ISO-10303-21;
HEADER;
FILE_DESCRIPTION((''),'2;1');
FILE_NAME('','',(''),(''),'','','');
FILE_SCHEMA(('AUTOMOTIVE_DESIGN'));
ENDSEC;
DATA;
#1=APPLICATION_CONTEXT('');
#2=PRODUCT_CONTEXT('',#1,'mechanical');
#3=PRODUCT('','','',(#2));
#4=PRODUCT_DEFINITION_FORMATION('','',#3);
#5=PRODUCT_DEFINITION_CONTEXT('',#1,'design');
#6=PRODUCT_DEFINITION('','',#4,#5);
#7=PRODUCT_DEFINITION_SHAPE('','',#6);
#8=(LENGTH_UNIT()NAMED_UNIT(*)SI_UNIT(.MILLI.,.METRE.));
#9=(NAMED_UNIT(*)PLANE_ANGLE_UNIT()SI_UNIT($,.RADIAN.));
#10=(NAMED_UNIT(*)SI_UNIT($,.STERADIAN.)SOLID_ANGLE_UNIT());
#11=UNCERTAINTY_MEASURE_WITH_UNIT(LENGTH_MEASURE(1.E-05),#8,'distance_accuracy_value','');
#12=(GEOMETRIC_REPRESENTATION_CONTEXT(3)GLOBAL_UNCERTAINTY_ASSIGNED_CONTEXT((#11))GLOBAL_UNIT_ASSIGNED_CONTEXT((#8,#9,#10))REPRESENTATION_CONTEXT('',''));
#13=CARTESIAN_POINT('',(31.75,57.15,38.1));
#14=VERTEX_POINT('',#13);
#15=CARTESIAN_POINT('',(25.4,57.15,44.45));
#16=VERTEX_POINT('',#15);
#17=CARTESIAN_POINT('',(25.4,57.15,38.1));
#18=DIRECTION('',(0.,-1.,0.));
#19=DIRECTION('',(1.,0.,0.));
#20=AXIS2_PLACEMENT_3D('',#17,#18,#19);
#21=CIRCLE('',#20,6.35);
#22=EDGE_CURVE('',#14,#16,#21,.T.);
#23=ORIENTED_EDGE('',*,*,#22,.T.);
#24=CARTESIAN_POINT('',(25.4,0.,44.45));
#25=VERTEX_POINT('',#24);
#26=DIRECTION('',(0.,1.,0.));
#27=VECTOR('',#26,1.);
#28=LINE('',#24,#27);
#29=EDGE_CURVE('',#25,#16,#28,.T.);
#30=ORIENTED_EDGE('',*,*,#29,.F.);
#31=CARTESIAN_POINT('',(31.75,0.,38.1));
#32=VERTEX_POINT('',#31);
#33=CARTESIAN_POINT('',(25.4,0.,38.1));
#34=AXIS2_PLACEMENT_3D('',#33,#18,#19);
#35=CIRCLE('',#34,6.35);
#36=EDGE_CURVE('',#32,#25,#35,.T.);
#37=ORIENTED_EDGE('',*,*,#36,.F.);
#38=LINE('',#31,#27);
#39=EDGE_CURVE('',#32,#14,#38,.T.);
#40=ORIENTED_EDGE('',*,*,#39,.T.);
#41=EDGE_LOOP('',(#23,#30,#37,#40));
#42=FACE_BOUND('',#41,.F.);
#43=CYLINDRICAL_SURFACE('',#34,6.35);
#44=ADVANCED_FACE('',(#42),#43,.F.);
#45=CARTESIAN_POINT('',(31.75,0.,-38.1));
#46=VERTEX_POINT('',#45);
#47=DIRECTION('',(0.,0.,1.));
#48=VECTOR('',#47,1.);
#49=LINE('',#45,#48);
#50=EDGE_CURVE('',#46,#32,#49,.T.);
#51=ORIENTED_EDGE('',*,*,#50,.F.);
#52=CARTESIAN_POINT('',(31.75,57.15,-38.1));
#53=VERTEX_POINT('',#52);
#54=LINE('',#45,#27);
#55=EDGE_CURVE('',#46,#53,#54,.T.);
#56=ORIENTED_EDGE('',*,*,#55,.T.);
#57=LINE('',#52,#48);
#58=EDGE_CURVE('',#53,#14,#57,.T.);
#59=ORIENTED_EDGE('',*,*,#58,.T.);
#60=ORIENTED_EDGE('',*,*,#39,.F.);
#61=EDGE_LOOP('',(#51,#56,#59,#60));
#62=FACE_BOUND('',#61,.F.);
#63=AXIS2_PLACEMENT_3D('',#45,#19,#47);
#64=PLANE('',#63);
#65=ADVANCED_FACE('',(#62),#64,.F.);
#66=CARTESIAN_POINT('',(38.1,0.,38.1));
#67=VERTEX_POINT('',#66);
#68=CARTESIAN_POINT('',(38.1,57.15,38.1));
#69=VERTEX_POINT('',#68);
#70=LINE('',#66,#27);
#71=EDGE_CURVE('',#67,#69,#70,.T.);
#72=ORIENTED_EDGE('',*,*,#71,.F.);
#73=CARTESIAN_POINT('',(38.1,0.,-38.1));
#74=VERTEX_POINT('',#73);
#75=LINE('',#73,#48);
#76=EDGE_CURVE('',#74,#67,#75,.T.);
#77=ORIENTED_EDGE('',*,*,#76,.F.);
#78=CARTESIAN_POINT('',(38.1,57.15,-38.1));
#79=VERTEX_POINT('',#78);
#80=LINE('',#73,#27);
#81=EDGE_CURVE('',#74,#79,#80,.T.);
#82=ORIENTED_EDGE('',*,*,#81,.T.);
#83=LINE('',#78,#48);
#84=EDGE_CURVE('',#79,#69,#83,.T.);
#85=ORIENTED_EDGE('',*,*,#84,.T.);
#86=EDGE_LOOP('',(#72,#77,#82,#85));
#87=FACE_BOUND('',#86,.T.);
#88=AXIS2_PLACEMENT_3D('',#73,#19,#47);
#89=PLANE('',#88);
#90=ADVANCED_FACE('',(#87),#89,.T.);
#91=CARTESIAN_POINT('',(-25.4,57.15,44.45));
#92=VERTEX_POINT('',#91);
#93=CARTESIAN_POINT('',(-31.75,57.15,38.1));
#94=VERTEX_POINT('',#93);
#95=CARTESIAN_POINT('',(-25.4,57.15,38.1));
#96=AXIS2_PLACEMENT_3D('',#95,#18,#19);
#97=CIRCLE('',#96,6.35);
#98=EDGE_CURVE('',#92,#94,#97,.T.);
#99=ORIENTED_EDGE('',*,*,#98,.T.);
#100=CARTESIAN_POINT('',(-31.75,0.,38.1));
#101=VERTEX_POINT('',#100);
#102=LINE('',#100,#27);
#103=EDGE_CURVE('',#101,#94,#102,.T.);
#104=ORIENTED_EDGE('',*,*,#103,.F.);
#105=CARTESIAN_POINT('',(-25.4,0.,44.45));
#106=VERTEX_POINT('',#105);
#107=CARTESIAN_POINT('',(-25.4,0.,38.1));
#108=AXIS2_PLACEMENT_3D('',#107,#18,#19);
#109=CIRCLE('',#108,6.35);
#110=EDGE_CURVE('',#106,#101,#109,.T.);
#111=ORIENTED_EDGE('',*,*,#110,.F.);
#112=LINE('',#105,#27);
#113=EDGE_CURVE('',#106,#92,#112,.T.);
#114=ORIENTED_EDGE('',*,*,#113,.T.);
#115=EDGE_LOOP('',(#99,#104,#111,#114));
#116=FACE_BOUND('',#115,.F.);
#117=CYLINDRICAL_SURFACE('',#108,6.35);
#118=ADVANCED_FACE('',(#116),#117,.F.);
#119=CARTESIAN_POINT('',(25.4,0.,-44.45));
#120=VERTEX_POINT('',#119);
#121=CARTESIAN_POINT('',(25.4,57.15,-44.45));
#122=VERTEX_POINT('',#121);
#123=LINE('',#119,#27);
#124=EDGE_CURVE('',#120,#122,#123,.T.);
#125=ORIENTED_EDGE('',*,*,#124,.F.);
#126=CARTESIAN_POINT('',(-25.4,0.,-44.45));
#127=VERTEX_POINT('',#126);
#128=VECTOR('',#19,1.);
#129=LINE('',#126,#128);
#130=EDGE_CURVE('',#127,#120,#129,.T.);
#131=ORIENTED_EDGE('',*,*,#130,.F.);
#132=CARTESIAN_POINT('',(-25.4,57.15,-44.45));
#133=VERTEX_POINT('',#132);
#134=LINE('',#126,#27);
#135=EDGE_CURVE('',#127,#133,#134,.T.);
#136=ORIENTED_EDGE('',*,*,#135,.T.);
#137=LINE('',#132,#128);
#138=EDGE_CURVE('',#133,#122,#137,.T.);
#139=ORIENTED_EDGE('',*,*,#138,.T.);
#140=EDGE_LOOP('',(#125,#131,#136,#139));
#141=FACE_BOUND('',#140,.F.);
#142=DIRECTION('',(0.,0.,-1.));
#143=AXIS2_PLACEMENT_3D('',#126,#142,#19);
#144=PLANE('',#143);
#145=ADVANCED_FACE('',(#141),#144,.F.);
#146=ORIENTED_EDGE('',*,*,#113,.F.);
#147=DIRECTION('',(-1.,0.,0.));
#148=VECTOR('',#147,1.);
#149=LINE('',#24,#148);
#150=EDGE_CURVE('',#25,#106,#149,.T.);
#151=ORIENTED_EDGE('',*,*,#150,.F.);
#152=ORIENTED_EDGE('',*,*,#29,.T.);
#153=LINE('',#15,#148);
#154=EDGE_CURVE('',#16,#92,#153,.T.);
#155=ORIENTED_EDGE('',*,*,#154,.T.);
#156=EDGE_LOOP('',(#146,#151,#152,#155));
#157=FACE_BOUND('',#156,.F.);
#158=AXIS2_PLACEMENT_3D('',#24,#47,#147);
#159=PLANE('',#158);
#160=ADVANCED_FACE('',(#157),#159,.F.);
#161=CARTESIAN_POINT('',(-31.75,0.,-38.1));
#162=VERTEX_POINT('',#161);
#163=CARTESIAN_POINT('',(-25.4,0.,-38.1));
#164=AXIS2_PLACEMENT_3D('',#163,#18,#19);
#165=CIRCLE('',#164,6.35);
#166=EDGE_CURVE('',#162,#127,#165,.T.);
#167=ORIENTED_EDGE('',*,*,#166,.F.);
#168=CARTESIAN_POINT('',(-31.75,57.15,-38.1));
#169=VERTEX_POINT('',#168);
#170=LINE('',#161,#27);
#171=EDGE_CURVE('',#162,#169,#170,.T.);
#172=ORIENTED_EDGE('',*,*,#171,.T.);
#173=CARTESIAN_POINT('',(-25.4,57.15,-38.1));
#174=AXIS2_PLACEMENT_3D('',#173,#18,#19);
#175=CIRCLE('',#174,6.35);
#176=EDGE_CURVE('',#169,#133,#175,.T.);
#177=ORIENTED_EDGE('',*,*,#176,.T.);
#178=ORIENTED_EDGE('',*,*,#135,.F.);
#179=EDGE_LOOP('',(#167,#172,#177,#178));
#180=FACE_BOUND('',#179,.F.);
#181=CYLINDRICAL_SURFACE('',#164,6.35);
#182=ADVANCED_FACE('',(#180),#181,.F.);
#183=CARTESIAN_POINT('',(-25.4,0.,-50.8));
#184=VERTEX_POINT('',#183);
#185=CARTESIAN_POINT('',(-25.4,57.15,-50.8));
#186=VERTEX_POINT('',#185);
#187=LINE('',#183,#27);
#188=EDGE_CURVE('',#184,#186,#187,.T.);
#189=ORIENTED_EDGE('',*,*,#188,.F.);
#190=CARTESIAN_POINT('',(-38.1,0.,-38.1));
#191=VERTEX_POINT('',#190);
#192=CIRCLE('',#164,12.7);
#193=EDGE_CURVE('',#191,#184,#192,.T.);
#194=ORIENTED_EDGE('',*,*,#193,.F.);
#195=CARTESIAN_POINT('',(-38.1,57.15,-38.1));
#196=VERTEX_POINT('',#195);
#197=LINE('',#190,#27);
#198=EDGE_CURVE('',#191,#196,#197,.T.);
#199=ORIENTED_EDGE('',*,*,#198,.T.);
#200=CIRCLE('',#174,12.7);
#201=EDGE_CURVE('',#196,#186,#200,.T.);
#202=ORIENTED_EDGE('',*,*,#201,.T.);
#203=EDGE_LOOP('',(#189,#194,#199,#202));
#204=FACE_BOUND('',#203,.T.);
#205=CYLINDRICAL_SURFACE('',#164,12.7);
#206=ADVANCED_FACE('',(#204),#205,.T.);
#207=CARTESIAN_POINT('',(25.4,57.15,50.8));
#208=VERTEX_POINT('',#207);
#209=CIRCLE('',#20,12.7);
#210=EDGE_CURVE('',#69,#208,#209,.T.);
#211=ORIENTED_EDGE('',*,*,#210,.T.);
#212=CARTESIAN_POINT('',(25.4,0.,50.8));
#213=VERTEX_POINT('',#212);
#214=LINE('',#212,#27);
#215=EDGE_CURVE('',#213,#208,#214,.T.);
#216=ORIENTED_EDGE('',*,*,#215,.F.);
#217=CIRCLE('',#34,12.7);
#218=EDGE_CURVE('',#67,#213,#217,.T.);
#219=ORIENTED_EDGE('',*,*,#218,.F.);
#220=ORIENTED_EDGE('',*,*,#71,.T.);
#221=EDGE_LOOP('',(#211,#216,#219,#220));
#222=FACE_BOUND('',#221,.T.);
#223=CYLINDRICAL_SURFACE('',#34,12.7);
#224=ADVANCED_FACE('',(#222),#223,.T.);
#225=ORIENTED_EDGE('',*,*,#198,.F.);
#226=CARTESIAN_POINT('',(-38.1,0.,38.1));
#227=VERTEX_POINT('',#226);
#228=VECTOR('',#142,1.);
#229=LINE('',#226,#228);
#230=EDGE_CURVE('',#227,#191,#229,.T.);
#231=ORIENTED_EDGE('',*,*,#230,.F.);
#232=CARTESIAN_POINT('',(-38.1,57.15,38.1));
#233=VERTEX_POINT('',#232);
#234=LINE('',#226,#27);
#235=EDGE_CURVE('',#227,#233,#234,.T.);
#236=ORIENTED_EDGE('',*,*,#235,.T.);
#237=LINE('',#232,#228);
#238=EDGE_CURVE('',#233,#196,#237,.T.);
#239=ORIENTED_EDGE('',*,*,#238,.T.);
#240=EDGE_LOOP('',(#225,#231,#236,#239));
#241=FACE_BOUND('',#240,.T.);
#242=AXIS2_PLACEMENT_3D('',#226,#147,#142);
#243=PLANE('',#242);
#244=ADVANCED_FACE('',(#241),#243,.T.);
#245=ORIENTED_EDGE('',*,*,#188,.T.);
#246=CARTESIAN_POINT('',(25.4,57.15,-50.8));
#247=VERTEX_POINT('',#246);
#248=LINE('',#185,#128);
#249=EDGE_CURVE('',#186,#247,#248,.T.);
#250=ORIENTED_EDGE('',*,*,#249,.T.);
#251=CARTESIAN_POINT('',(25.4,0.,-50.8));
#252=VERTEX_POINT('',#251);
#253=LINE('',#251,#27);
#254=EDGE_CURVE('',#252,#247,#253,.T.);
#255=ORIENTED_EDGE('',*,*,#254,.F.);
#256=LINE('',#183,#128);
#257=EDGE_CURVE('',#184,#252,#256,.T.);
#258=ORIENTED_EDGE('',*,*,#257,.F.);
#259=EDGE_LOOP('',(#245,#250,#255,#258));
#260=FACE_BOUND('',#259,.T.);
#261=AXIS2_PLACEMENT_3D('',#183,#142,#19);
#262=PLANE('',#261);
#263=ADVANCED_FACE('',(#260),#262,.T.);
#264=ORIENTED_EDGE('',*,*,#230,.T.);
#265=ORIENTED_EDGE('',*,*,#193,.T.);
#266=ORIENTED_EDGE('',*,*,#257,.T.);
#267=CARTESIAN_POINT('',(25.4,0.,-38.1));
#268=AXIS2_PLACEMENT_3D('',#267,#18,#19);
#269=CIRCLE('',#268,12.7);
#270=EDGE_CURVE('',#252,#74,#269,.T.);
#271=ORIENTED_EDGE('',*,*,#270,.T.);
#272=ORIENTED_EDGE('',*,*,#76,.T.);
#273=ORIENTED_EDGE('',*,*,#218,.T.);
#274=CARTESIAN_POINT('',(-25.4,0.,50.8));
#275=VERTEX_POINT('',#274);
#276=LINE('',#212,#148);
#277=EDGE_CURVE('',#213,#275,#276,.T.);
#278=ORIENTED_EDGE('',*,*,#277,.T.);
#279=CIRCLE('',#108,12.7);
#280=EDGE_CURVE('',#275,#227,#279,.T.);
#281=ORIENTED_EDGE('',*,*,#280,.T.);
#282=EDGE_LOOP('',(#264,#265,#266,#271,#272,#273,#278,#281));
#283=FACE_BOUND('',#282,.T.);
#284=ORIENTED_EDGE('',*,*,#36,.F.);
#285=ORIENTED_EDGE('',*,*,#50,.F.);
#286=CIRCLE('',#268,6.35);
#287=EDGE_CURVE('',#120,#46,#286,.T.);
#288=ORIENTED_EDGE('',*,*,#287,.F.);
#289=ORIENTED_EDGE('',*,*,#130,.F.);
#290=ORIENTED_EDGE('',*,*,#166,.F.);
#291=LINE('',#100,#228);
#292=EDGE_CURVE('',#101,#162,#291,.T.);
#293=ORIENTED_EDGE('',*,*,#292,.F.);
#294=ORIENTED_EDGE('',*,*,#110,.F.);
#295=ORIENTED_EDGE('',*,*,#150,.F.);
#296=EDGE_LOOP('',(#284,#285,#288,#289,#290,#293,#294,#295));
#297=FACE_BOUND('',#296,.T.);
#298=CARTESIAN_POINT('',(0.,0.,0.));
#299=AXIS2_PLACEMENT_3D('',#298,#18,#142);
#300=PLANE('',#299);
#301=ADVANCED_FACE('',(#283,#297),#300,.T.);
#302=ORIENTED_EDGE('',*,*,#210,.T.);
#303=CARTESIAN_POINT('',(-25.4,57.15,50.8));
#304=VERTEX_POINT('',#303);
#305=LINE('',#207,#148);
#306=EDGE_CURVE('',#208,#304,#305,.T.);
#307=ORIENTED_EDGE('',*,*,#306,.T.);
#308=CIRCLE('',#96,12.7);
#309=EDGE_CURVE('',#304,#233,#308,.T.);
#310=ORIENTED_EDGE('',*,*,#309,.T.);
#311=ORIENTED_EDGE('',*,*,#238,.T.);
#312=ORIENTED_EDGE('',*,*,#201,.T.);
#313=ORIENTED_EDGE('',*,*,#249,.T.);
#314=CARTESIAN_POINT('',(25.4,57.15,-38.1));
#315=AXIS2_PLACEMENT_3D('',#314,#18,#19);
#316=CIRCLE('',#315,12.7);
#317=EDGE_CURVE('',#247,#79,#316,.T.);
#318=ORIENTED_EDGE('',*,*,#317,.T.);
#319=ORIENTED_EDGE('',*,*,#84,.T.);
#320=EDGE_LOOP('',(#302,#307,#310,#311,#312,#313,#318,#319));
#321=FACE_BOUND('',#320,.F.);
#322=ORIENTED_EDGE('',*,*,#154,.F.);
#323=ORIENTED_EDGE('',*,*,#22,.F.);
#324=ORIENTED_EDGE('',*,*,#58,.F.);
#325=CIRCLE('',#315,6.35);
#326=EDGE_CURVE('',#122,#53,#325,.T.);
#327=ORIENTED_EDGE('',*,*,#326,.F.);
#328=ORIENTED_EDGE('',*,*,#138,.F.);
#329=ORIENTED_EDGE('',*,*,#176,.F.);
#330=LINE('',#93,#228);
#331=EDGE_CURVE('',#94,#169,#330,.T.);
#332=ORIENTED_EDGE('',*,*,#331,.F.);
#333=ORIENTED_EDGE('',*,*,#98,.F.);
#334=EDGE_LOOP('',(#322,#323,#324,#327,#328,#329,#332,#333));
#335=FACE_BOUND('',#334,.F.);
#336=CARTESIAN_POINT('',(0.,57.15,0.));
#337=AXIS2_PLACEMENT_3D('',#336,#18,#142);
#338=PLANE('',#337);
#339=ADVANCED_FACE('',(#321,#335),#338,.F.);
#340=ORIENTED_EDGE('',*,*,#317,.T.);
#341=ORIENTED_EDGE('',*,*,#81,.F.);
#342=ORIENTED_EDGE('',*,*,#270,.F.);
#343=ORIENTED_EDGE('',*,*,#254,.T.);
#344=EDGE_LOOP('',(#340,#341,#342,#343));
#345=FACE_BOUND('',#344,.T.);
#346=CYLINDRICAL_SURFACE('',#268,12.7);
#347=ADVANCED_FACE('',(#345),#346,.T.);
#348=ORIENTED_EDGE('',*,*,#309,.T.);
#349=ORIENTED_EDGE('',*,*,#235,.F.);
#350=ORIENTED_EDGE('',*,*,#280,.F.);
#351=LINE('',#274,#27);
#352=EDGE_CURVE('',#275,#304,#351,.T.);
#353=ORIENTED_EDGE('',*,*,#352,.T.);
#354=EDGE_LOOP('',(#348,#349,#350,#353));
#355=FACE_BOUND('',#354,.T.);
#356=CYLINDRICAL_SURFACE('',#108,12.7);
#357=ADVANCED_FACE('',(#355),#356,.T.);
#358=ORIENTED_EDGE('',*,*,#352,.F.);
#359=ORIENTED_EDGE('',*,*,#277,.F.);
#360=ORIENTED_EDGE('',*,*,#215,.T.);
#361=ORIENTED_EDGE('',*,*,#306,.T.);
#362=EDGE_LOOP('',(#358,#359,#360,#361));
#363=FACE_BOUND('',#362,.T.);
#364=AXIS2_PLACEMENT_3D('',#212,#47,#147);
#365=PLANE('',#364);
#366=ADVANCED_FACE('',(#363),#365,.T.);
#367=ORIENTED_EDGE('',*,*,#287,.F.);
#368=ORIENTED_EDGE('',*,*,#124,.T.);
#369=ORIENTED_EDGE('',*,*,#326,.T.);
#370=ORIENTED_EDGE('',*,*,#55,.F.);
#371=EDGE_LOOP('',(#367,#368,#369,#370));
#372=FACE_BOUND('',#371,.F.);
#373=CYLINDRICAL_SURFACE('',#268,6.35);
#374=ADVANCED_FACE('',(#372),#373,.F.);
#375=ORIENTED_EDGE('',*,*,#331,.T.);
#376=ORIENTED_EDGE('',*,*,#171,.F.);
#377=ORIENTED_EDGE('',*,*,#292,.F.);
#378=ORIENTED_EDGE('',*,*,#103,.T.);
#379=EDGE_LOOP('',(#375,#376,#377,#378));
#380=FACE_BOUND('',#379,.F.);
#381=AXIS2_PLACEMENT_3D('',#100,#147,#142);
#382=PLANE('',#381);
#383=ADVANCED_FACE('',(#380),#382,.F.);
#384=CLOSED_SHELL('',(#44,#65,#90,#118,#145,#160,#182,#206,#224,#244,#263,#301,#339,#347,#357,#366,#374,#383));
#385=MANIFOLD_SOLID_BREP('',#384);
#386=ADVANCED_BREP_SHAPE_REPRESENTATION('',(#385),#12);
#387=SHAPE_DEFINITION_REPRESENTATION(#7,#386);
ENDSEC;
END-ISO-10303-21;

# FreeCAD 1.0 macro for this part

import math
import FreeCAD as App
import Part
import Sketcher
Q = App.Units.Quantity

doc = App.newDocument("Part")
body = doc.addObject("PartDesign::Body", "Body")

sketch1 = doc.addObject("Sketcher::SketchObject", "Sketch")
body.addObject(sketch1)
sketch1.AttachmentSupport = (doc.XZ_Plane, [""])
sketch1.MapMode = "FlatFace"
sketch1.addGeometry([
    Part.LineSegment(App.Vector(-38.1, 38.1, 0), App.Vector(-38.1, -38.1, 0)),
    Part.ArcOfCircle(Part.Circle(App.Vector(-25.4, -38.1, 0), App.Vector(0, 0, 1), 12.7), math.radians(180), math.radians(270)),
    Part.LineSegment(App.Vector(-25.4, -50.8, 0), App.Vector(25.4, -50.8, 0)),
    Part.ArcOfCircle(Part.Circle(App.Vector(25.4, -38.1, 0), App.Vector(0, 0, 1), 12.7), math.radians(-90), math.radians(0)),
    Part.LineSegment(App.Vector(38.1, -38.1, 0), App.Vector(38.1, 38.1, 0)),
    Part.ArcOfCircle(Part.Circle(App.Vector(25.4, 38.1, 0), App.Vector(0, 0, 1), 12.7), math.radians(0), math.radians(90)),
    Part.LineSegment(App.Vector(25.4, 50.8, 0), App.Vector(-25.4, 50.8, 0)),
    Part.ArcOfCircle(Part.Circle(App.Vector(-25.4, 38.1, 0), App.Vector(0, 0, 1), 12.7), math.radians(90), math.radians(180)),
    Part.ArcOfCircle(Part.Circle(App.Vector(-25.4, -38.1, 0), App.Vector(0, 0, 1), 6.35), math.radians(180), math.radians(270)),
    Part.LineSegment(App.Vector(-31.75, -38.1, 0), App.Vector(-31.75, 38.1, 0)),
    Part.ArcOfCircle(Part.Circle(App.Vector(-25.4, 38.1, 0), App.Vector(0, 0, 1), 6.35), math.radians(90), math.radians(180)),
    Part.LineSegment(App.Vector(-25.4, 44.45, 0), App.Vector(25.4, 44.45, 0)),
    Part.ArcOfCircle(Part.Circle(App.Vector(25.4, 38.1, 0), App.Vector(0, 0, 1), 6.35), math.radians(0), math.radians(90)),
    Part.LineSegment(App.Vector(31.75, 38.1, 0), App.Vector(31.75, -38.1, 0)),
    Part.ArcOfCircle(Part.Circle(App.Vector(25.4, -38.1, 0), App.Vector(0, 0, 1), 6.35), math.radians(-90), math.radians(0)),
    Part.LineSegment(App.Vector(25.4, -44.45, 0), App.Vector(-25.4, -44.45, 0)),
], False)
sketch1.addConstraint([
    Sketcher.Constraint("Tangent", 0, 2, 1, 1),
    Sketcher.Constraint("Tangent", 1, 2, 2, 1),
    Sketcher.Constraint("Tangent", 2, 2, 3, 1),
    Sketcher.Constraint("Tangent", 3, 2, 4, 1),
    Sketcher.Constraint("Tangent", 4, 2, 5, 1),
    Sketcher.Constraint("Tangent", 5, 2, 6, 1),
    Sketcher.Constraint("Tangent", 6, 2, 7, 1),
    Sketcher.Constraint("Tangent", 7, 2, 0, 1),
    Sketcher.Constraint("Tangent", 8, 1, 9, 1),
    Sketcher.Constraint("Tangent", 9, 2, 10, 2),
    Sketcher.Constraint("Tangent", 10, 1, 11, 1),
    Sketcher.Constraint("Tangent", 11, 2, 12, 2),
    Sketcher.Constraint("Tangent", 12, 1, 13, 1),
    Sketcher.Constraint("Tangent", 13, 2, 14, 2),
    Sketcher.Constraint("Tangent", 14, 1, 15, 1),
    Sketcher.Constraint("Tangent", 15, 2, 8, 2),
    Sketcher.Constraint("Vertical", 0),
    Sketcher.Constraint("Horizontal", 2),
    Sketcher.Constraint("Vertical", 4),
    Sketcher.Constraint("Horizontal", 6),
    Sketcher.Constraint("Vertical", 9),
    Sketcher.Constraint("Horizontal", 11),
    Sketcher.Constraint("Vertical", 13),
    Sketcher.Constraint("Horizontal", 15),
    Sketcher.Constraint("Coincident", 8, 3, 1, 3),
    Sketcher.Constraint("Coincident", 10, 3, 7, 3),
    Sketcher.Constraint("Coincident", 12, 3, 5, 3),
    Sketcher.Constraint("Equal", 1, 3),
    Sketcher.Constraint("Equal", 3, 5),
    Sketcher.Constraint("Equal", 5, 7),
    Sketcher.Constraint("Equal", 12, 14),
    Sketcher.Constraint("Symmetric", 1, 3, 5, 3, -1, 1),
    Sketcher.Constraint("Radius", 1, Q("0.5 in")),
    Sketcher.Constraint("DistanceX", 2, 1, 2, 2, Q("2 in")),
    Sketcher.Constraint("DistanceY", 0, 2, 0, 1, Q("3 in")),
    Sketcher.Constraint("Radius", 8, Q("0.25 in")),
])
pad1 = doc.addObject("PartDesign::Pad", "Pad")
body.addObject(pad1)
pad1.Profile = sketch1
pad1.Length = Q("2.25 in")
pad1.Reversed = True

doc.recompute()
